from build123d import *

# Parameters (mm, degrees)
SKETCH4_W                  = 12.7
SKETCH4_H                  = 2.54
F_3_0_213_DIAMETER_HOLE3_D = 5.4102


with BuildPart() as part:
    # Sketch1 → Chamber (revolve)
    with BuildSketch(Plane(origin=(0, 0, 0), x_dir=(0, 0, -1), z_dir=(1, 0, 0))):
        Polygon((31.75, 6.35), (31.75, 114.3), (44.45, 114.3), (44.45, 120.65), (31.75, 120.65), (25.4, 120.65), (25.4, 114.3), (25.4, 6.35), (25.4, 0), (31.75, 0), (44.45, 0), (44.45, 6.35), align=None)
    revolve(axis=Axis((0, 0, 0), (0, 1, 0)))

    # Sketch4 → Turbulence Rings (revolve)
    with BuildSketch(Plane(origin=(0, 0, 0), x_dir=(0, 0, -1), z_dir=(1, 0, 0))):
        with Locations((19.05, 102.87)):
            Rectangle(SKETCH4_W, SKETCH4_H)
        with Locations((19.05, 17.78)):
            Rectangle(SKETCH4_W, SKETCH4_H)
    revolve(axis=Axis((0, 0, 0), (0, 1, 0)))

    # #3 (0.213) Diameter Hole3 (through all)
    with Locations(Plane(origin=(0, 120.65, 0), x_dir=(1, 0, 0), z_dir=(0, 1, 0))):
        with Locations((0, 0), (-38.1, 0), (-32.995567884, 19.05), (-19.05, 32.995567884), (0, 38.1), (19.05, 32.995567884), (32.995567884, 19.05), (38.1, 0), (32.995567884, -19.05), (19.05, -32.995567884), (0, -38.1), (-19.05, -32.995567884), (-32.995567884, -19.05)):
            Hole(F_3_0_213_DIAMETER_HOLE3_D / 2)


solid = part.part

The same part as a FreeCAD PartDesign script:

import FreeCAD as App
import Part
import Sketcher
from FreeCAD import Vector
Q = App.Units.Quantity


def add_polygon(sketch, points):
    """Adds a closed chain of lines whose ends are joined by coincident constraints."""
    first, n = sketch.GeometryCount, len(points)
    for a, b in zip(points, points[1:] + points[:1]):
        sketch.addGeometry(Part.LineSegment(App.Vector(*a, 0), App.Vector(*b, 0)), False)
    for i in range(n):
        sketch.addConstraint(Sketcher.Constraint("Coincident", first + i, 2, first + (i + 1) % n, 1))

doc = App.newDocument("Part")
body = doc.addObject("PartDesign::Body", "Body")

# Sketch on YZ plane
sketch1 = body.newObject("Sketcher::SketchObject", "Sketch")
sketch1.AttachmentSupport = (doc.getObject("YZ_Plane"), [""])
sketch1.MapMode = "FlatFace"
add_polygon(sketch1, [(6, -32), (114, -32), (114, -44), (121, -44), (121, -25), (0, -25), (0, -44), (6, -44)])  # lines 0-7
sketch1.addConstraint([
    Sketcher.Constraint("Horizontal", 0),
    Sketcher.Constraint("Vertical", 1),
    Sketcher.Constraint("Horizontal", 2),
    Sketcher.Constraint("Vertical", 3),
    Sketcher.Constraint("Horizontal", 4),
    Sketcher.Constraint("Vertical", 5),
    Sketcher.Constraint("Horizontal", 6),
    Sketcher.Constraint("Vertical", 7),
    Sketcher.Constraint("PointOnObject", 4, 2, -2),
    Sketcher.Constraint("Horizontal", 2, 2, 5, 2),
    Sketcher.Constraint("Equal", 2, 6),
    Sketcher.Constraint("DistanceY", 1, 2, 1, 1, Q("0.5 in")),
    Sketcher.Constraint("DistanceY", 3, 2, -1, 1, Q("1 in")),
    Sketcher.Constraint("DistanceX", 0, 1, 0, 2, Q("4.25 in")),
    Sketcher.Constraint("DistanceX", 2, 1, 2, 2, Q("0.25 in")),
    Sketcher.Constraint("DistanceY", 3, 1, 3, 2, Q("0.75 in")),
])
revolution = body.newObject("PartDesign::Revolution", "Revolution")
revolution.Profile = sketch1
revolution.ReferenceAxis = (sketch1, ["H_Axis"])
revolution.Angle = 360

# Sketch on YZ plane
sketch2 = body.newObject("Sketcher::SketchObject", "Sketch001")
sketch2.AttachmentSupport = (doc.getObject("YZ_Plane"), [""])
sketch2.MapMode = "FlatFace"
add_polygon(sketch2, [(104.1, -12.7), (101.6, -12.7), (101.6, -25.4), (104.1, -25.4)])  # lines 0-3
add_polygon(sketch2, [(19.1, -12.7), (16.5, -12.7), (16.5, -25.4), (19.1, -25.4)])  # lines 4-7
sketch2.addConstraint([
    Sketcher.Constraint("Horizontal", 0),
    Sketcher.Constraint("Vertical", 1),
    Sketcher.Constraint("Horizontal", 2),
    Sketcher.Constraint("Vertical", 3),
    Sketcher.Constraint("Horizontal", 4),
    Sketcher.Constraint("Vertical", 5),
    Sketcher.Constraint("Horizontal", 6),
    Sketcher.Constraint("Vertical", 7),
    Sketcher.Constraint("Horizontal", 3, 2, 4, 2),
    Sketcher.Constraint("Horizontal", 2, 2, 5, 2),
    Sketcher.Constraint("Equal", 2, 4),
    Sketcher.Constraint("DistanceX", 0, 2, 0, 1, Q("0.1 in")),
    Sketcher.Constraint("DistanceY", 1, 2, 1, 1, Q("0.5 in")),
    Sketcher.Constraint("DistanceX", -1, 1, 0, 2, Q("4 in")),
    Sketcher.Constraint("DistanceY", 1, 2, -1, 1, Q("1 in")),
    Sketcher.Constraint("DistanceX", -1, 1, 4, 2, Q("0.65 in")),
])
revolution2 = body.newObject("PartDesign::Revolution", "Revolution001")
revolution2.Profile = sketch2
revolution2.ReferenceAxis = (sketch2, ["H_Axis"])
revolution2.Angle = 360

# Sketch on XZ plane
sketch3 = body.newObject("Sketcher::SketchObject", "Sketch002")
sketch3.AttachmentSupport = (doc.getObject("XZ_Plane"), [""])
sketch3.MapMode = "FlatFace"
sketch3.AttachmentOffset = App.Placement(Vector(0, 0, -4.75 * 25.4), App.Rotation())
sketch3.addGeometry([
    Part.Circle(Vector(0, 0, 0), Vector(0, 0, 1), 2.7),  # 0
    Part.Circle(Vector(-38.1, 0, 0), Vector(0, 0, 1), 2.7),  # 1
    Part.Circle(Vector(-33, -19.1, 0), Vector(0, 0, 1), 2.7),  # 2
    Part.Circle(Vector(-19.1, -33, 0), Vector(0, 0, 1), 2.7),  # 3
    Part.Circle(Vector(0, -38.1, 0), Vector(0, 0, 1), 2.7),  # 4
    Part.Circle(Vector(19.1, -33, 0), Vector(0, 0, 1), 2.7),  # 5
    Part.Circle(Vector(33, -19.1, 0), Vector(0, 0, 1), 2.7),  # 6
    Part.Circle(Vector(38.1, 0, 0), Vector(0, 0, 1), 2.7),  # 7
    Part.Circle(Vector(33, 19.1, 0), Vector(0, 0, 1), 2.7),  # 8
    Part.Circle(Vector(19.1, 33, 0), Vector(0, 0, 1), 2.7),  # 9
    Part.Circle(Vector(0, 38.1, 0), Vector(0, 0, 1), 2.7),  # 10
    Part.Circle(Vector(-19.1, 33, 0), Vector(0, 0, 1), 2.7),  # 11
    Part.Circle(Vector(-33, 19.1, 0), Vector(0, 0, 1), 2.7),  # 12
], False)
sketch3.addConstraint([
    Sketcher.Constraint("Coincident", 0, 3, -1, 1),
    Sketcher.Constraint("Equal", 0, 1),
    Sketcher.Constraint("Equal", 1, 2),
    Sketcher.Constraint("Equal", 2, 3),
    Sketcher.Constraint("Equal", 3, 4),
    Sketcher.Constraint("Equal", 4, 5),
    Sketcher.Constraint("Equal", 5, 6),
    Sketcher.Constraint("Equal", 6, 7),
    Sketcher.Constraint("Equal", 7, 8),
    Sketcher.Constraint("Equal", 8, 9),
    Sketcher.Constraint("Equal", 9, 10),
    Sketcher.Constraint("Equal", 10, 11),
    Sketcher.Constraint("Equal", 11, 12),
    Sketcher.Constraint("Symmetric", 1, 3, 7, 3, -1, 1),
    Sketcher.Constraint("Symmetric", 2, 3, 8, 3, -1, 1),
    Sketcher.Constraint("Symmetric", 3, 3, 9, 3, -1, 1),
    Sketcher.Constraint("Symmetric", 4, 3, 10, 3, -1, 1),
    Sketcher.Constraint("Symmetric", 5, 3, 11, 3, -1, 1),
    Sketcher.Constraint("Symmetric", 6, 3, 12, 3, -1, 1),
    Sketcher.Constraint("Symmetric", 3, 3, 5, 3, -2),
    Sketcher.Constraint("Symmetric", 2, 3, 6, 3, -2),
    Sketcher.Constraint("PointOnObject", 1, 3, -1),
    Sketcher.Constraint("PointOnObject", 4, 3, -2),
    Sketcher.Constraint("Diameter", 0, Q("0.213 in")),
    Sketcher.Constraint("DistanceX", 1, 3, -1, 1, Q("1.5 in")),
    Sketcher.Constraint("DistanceY", 4, 3, -1, 1, Q("1.5 in")),
    Sketcher.Constraint("DistanceX", 3, 3, 5, 3, Q("1.5 in")),
    Sketcher.Constraint("DistanceY", 6, 3, 8, 3, Q("1.5 in")),
    Sketcher.Constraint("DistanceX", 2, 3, -1, 1, Q("32.995568 mm")),
    Sketcher.Constraint("DistanceY", 3, 3, -1, 1, Q("32.995568 mm")),
])
doc.recompute()
hole = body.newObject("PartDesign::Hole", "Hole")
hole.Profile = sketch3
hole.ThreadType = "None"
hole.Diameter = Q("0.213 in")
hole.DepthType = "ThroughAll"
hole.Reversed = True

doc.recompute()
